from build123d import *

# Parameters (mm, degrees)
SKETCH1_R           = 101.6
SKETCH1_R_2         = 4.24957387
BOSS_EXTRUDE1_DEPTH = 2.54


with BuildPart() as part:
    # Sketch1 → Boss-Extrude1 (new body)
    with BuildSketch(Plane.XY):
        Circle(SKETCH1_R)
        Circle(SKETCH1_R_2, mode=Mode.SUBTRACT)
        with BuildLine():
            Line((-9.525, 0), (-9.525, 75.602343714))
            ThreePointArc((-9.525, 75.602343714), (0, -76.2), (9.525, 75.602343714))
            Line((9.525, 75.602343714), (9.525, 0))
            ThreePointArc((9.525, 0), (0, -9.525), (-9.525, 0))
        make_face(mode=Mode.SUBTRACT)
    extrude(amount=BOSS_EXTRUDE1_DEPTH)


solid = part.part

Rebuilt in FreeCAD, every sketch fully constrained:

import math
import FreeCAD as App
import Part
import Sketcher
Q = App.Units.Quantity

doc = App.newDocument("Part")
body = doc.addObject("PartDesign::Body", "Body")

# Sketch on XY plane
sketch1 = body.newObject("Sketcher::SketchObject", "Sketch")
sketch1.AttachmentSupport = (doc.getObject("XY_Plane"), [""])
sketch1.MapMode = "FlatFace"
sketch1.addGeometry([
    Part.Circle(App.Vector(0, 0, 0), App.Vector(0, 0, 1), 101.6),  # 0
    Part.Circle(App.Vector(0, 0, 0), App.Vector(0, 0, 1), 4.2),  # 1
    Part.LineSegment(App.Vector(-9.5, 75.6, 0), App.Vector(-9.5, 0, 0)),  # 2
    Part.ArcOfCircle(Part.Circle(App.Vector(0, 0, 0), App.Vector(0, 0, 1), 9.5), math.radians(180), math.radians(360)),  # 3
    Part.LineSegment(App.Vector(9.5, 0, 0), App.Vector(9.5, 75.6, 0)),  # 4
    Part.ArcOfCircle(Part.Circle(App.Vector(0, 0, 0), App.Vector(0, 0, 1), 76.2), math.radians(97), math.radians(443)),  # 5
], False)
sketch1.addConstraint([
    Sketcher.Constraint("Tangent", 2, 2, 3, 1),
    Sketcher.Constraint("Tangent", 3, 2, 4, 1),
    Sketcher.Constraint("Coincident", 4, 2, 5, 2),
    Sketcher.Constraint("Coincident", 5, 1, 2, 1),
    Sketcher.Constraint("Vertical", 2),
    Sketcher.Constraint("Vertical", 4),
    Sketcher.Constraint("Coincident", 0, 3, -1, 1),
    Sketcher.Constraint("Coincident", 1, 3, -1, 1),
    Sketcher.Constraint("Coincident", 3, 3, -1, 1),
    Sketcher.Constraint("Coincident", 5, 3, -1, 1),
    Sketcher.Constraint("Diameter", 0, Q("8 in")),
    Sketcher.Constraint("Radius", 5, Q("3 in")),
    Sketcher.Constraint("Radius", 3, Q("0.375 in")),
    Sketcher.Constraint("Diameter", 1, Q("8.499148 mm")),
])
pad1 = body.newObject("PartDesign::Pad", "Pad")
pad1.Profile = sketch1
pad1.Length = Q("0.1 in")

doc.recompute()
